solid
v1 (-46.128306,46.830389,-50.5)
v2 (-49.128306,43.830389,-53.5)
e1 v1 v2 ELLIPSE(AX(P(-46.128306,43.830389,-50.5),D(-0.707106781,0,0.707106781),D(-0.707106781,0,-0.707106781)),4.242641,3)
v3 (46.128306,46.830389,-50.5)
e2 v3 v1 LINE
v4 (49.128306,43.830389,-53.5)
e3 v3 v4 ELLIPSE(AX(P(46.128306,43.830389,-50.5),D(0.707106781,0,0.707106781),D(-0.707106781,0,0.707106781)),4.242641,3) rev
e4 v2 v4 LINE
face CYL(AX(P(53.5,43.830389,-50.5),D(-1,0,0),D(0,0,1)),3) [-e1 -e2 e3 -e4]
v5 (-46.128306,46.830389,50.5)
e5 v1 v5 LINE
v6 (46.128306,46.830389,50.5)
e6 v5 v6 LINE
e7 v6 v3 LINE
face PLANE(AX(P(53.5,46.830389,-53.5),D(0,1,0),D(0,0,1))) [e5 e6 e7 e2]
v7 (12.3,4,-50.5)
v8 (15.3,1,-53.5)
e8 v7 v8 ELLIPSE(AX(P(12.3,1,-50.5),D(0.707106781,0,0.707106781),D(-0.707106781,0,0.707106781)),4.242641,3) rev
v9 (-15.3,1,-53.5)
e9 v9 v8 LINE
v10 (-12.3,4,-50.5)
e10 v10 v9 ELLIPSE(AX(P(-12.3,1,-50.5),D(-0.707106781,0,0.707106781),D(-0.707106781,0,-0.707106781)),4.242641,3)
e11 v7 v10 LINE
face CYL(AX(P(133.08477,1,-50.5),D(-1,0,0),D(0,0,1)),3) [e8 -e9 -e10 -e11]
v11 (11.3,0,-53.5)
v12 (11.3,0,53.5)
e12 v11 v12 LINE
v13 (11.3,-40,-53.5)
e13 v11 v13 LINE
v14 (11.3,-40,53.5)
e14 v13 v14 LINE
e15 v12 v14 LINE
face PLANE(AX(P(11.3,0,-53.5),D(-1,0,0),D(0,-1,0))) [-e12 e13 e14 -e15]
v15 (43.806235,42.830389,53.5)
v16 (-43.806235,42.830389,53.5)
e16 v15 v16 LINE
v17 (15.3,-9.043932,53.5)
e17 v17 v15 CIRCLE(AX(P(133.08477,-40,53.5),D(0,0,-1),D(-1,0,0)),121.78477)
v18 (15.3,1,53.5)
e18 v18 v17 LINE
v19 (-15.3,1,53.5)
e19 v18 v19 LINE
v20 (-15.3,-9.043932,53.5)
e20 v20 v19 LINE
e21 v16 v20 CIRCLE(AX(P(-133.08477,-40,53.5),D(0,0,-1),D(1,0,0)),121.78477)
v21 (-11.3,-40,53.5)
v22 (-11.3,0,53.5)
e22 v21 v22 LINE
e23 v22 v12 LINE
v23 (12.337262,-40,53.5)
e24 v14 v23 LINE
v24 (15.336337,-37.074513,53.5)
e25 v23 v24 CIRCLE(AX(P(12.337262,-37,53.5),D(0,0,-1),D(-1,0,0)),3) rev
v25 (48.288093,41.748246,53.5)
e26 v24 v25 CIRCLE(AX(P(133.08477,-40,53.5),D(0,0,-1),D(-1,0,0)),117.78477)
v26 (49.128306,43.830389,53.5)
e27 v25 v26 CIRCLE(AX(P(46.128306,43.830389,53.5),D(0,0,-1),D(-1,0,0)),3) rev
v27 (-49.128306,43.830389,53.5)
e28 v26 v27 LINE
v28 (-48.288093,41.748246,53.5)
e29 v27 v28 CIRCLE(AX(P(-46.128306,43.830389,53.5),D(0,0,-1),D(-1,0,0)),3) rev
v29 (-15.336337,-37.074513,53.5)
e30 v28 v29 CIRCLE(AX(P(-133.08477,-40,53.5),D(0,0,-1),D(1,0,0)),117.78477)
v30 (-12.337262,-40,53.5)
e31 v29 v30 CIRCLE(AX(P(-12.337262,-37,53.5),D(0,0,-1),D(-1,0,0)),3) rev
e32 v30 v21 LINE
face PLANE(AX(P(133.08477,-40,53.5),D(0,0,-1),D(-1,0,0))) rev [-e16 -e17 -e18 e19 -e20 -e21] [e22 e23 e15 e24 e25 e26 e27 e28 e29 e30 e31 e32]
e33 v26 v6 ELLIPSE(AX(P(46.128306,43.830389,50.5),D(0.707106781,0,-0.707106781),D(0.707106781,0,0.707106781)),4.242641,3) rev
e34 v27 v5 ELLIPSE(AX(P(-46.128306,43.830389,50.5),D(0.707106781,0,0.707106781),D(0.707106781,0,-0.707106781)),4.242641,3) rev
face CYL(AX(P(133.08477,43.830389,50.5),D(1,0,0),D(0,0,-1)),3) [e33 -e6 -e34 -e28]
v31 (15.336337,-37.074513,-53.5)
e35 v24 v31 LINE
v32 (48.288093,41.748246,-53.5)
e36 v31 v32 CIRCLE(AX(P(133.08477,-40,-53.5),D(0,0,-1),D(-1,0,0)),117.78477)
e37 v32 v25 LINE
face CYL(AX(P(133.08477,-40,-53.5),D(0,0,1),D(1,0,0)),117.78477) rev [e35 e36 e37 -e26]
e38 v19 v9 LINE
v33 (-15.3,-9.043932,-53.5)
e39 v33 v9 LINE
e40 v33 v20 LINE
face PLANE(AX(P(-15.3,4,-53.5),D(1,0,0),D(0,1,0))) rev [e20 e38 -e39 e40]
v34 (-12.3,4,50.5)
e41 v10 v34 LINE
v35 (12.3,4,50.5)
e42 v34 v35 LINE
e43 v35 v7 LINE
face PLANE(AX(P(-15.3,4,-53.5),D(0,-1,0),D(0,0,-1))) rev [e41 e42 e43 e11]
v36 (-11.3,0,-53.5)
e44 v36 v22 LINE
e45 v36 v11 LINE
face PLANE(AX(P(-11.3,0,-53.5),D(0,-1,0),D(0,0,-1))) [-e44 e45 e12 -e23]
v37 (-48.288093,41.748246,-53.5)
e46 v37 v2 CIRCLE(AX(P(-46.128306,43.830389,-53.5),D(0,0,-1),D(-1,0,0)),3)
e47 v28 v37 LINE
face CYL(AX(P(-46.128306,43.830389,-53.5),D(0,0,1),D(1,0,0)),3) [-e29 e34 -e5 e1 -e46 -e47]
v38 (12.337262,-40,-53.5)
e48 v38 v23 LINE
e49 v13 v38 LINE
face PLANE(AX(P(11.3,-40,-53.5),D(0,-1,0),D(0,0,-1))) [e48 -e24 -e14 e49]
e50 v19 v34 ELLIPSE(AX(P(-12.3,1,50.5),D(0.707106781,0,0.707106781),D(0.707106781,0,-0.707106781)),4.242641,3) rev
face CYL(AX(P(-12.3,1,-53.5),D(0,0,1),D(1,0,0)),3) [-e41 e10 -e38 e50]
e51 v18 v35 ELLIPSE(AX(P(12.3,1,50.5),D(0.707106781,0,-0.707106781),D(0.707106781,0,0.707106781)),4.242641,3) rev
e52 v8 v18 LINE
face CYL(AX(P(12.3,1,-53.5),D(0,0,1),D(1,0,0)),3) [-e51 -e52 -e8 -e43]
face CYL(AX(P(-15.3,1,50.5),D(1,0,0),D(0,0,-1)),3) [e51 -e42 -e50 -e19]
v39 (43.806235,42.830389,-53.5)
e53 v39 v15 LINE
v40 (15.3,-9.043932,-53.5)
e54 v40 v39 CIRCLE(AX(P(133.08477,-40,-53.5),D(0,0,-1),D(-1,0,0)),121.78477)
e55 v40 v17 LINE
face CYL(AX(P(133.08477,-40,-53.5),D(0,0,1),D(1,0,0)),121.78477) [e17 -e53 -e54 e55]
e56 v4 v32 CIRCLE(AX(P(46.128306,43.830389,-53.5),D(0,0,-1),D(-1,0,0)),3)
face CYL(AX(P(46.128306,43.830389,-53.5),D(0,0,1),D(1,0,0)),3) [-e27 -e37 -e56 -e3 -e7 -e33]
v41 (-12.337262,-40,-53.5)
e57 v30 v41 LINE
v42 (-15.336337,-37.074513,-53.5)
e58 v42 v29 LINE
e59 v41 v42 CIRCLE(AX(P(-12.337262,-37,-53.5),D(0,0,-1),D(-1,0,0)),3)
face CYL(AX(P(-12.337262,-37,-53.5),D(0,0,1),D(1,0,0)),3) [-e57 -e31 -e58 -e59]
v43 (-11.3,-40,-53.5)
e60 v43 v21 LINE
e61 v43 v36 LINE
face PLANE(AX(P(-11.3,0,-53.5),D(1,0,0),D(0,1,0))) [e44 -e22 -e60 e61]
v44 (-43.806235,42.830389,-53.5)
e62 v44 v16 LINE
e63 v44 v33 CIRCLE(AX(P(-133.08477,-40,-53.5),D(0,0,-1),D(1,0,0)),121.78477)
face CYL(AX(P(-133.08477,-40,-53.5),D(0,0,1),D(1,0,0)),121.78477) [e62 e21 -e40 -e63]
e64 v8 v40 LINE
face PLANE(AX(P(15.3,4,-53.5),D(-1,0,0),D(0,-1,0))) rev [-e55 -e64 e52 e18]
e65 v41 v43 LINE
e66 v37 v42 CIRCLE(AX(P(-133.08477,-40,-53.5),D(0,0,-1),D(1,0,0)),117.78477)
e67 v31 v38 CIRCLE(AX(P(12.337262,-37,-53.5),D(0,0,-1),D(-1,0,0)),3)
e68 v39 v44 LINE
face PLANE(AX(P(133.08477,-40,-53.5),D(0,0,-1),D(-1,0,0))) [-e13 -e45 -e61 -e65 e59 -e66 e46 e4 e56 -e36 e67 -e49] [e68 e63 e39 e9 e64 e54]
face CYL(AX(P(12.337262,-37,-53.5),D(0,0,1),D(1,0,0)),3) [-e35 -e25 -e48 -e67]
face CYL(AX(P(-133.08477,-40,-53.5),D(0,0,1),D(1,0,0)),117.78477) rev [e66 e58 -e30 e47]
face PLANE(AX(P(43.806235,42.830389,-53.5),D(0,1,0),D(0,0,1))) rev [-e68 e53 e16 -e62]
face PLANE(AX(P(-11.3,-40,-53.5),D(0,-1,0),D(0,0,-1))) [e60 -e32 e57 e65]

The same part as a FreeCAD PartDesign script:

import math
import FreeCAD as App
import Part
import Sketcher

V = App.Vector


def edges_at(feature, points):
    """Names of the edges that pass closest to the given points."""
    edges = feature.Shape.Edges
    near = lambda p: min(range(len(edges)), key=lambda i: edges[i].distToShape(Part.Vertex(*p))[0])
    return sorted({f"Edge{near(p) + 1}" for p in points})

doc = App.newDocument("Part")
body = doc.addObject("PartDesign::Body", "Body")

# Sketch on XY plane
sketch1 = doc.addObject("Sketcher::SketchObject", "Sketch")
body.addObject(sketch1)
sketch1.AttachmentSupport = (doc.XY_Plane, [""])
sketch1.MapMode = "FlatFace"
sketch1.addGeometry([
    Part.LineSegment(V(-11.3, 0, 0), V(11.3, 0, 0)),  # 0
    Part.LineSegment(V(11.3, 0, 0), V(11.3, -40, 0)),  # 1
    Part.LineSegment(V(11.3, -40, 0), V(15.3, -40, 0)),  # 2
    Part.ArcOfCircle(Part.Circle(V(133.08477, -40, 0), V(0, 0, 1), 117.78477), math.radians(132.50695), math.radians(180)),  # 3
    Part.LineSegment(V(53.5, 46.830389, 0), V(-53.5, 46.830389, 0)),  # 4
    Part.ArcOfCircle(Part.Circle(V(-133.08477, -40, 0), V(0, 0, 1), 117.78477), math.radians(0), math.radians(47.49305)),  # 5
    Part.LineSegment(V(-15.3, -40, 0), V(-11.3, -40, 0)),  # 6
    Part.LineSegment(V(-11.3, -40, 0), V(-11.3, 0, 0)),  # 7
    Part.LineSegment(V(-43.806235, 42.830389, 0), V(43.806235, 42.830389, 0)),  # 8
    Part.ArcOfCircle(Part.Circle(V(133.08477, -40, 0), V(0, 0, 1), 121.78477), math.radians(137.145611), math.radians(165.274602)),  # 9
    Part.LineSegment(V(15.3, -9.043932, 0), V(15.3, 4, 0)),  # 10
    Part.LineSegment(V(15.3, 4, 0), V(-15.3, 4, 0)),  # 11
    Part.LineSegment(V(-15.3, 4, 0), V(-15.3, -9.043932, 0)),  # 12
    Part.ArcOfCircle(Part.Circle(V(-133.08477, -40, 0), V(0, 0, 1), 121.78477), math.radians(14.725398), math.radians(42.854389)),  # 13
], False)
sketch1.addConstraint([
    Sketcher.Constraint("Coincident", 0, 2, 1, 1),
    Sketcher.Constraint("Coincident", 1, 2, 2, 1),
    Sketcher.Constraint("Coincident", 2, 2, 3, 2),
    Sketcher.Constraint("Coincident", 3, 1, 4, 1),
    Sketcher.Constraint("Coincident", 4, 2, 5, 2),
    Sketcher.Constraint("Coincident", 5, 1, 6, 1),
    Sketcher.Constraint("Coincident", 6, 2, 7, 1),
    Sketcher.Constraint("Coincident", 7, 2, 0, 1),
    Sketcher.Constraint("Coincident", 8, 2, 9, 1),
    Sketcher.Constraint("Coincident", 9, 2, 10, 1),
    Sketcher.Constraint("Coincident", 10, 2, 11, 1),
    Sketcher.Constraint("Coincident", 11, 2, 12, 1),
    Sketcher.Constraint("Coincident", 12, 2, 13, 1),
    Sketcher.Constraint("Coincident", 13, 2, 8, 1),
    Sketcher.Constraint("Horizontal", 0),
    Sketcher.Constraint("Vertical", 1),
    Sketcher.Constraint("Horizontal", 2),
    Sketcher.Constraint("Horizontal", 4),
    Sketcher.Constraint("Horizontal", 6),
    Sketcher.Constraint("Vertical", 7),
    Sketcher.Constraint("Horizontal", 8),
    Sketcher.Constraint("Vertical", 10),
    Sketcher.Constraint("Horizontal", 11),
    Sketcher.Constraint("Vertical", 12),
    Sketcher.Constraint("Coincident", 9, 3, 3, 3),
    Sketcher.Constraint("Coincident", 13, 3, 5, 3),
    Sketcher.Constraint("Equal", 3, 5),
    Sketcher.Constraint("Equal", 9, 13),
    Sketcher.Constraint("Symmetric", 0, 2, 7, 2, -1, 1),
    Sketcher.Constraint("Symmetric", 3, 3, 5, 3, -2),
    Sketcher.Constraint("Horizontal", 13, 3, 1, 2),
    Sketcher.Constraint("Horizontal", 2, 2, 5, 1),
    Sketcher.Constraint("Horizontal", 9, 2, 12, 2),
    Sketcher.Constraint("Vertical", 2, 2, 9, 2),
    Sketcher.Constraint("DistanceX", 2, 1, 2, 2, 4.0),
    Sketcher.Constraint("DistanceX", 4, 2, 4, 1, 107.0),
    Sketcher.Constraint("DistanceY", 1, 2, 1, 1, 40.0),
    Sketcher.Constraint("DistanceX", 0, 1, 0, 2, 22.6),
    Sketcher.Constraint("DistanceY", -1, 1, 10, 2, 4.0),
    Sketcher.Constraint("DistanceY", 8, 2, 3, 1, 4.0),
    Sketcher.Constraint("Radius", 3, 117.78477),
    Sketcher.Constraint("Radius", 9, 121.78477),
])
pad1 = doc.addObject("PartDesign::Pad", "Pad")
body.addObject(pad1)
pad1.Profile = sketch1
pad1.Length = 107
pad1.Midplane = True
doc.recompute()

fillet = doc.addObject("PartDesign::Fillet", "Fillet")
body.addObject(fillet)
fillet.Base = (pad1, edges_at(pad1, [
    (0, 46.83, 53.5),
    (-15.3, -40, 0),
    (-53.5, 46.83, 0),
    (53.5, 46.83, 0),
    (15.3, -40, 0),
    (0, 46.83, -53.5),
    (0, 4, -53.5),
    (15.3, 4, 0),
    (-15.3, 4, 0),
    (0, 4, 53.5),
]))
fillet.Radius = 3

doc.recompute()
